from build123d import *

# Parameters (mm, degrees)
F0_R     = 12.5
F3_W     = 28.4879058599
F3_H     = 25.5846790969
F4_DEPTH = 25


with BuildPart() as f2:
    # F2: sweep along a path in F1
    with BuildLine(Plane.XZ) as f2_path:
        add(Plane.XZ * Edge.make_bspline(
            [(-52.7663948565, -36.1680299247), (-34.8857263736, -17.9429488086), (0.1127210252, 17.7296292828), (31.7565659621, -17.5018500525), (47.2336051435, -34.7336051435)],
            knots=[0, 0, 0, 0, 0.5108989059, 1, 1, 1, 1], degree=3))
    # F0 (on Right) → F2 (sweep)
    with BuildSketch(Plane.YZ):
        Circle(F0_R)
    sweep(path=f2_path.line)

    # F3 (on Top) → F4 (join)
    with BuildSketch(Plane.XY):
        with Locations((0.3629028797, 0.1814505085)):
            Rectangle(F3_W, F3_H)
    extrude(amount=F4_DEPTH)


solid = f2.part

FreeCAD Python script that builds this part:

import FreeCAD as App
import Part
import Sketcher
Q = App.Units.Quantity

doc = App.newDocument("Part")
body = doc.addObject("PartDesign::Body", "Body")

# Sketch on YZ plane
sketch1 = body.newObject("Sketcher::SketchObject", "Sketch")
sketch1.AttachmentSupport = (doc.getObject("YZ_Plane"), [""])
sketch1.MapMode = "FlatFace"
sketch1.addGeometry(Part.Circle(App.Vector(0, 0, 0), App.Vector(0, 0, 1), 12), False)
sketch1.addConstraint([
    Sketcher.Constraint("Coincident", 0, 3, -1, 1),
    Sketcher.Constraint("Diameter", 0, Q("25 mm")),
])

# Sketch on XZ plane
sketch2 = body.newObject("Sketcher::SketchObject", "Sketch001")
sketch2.AttachmentSupport = (doc.getObject("XZ_Plane"), [""])
sketch2.MapMode = "FlatFace"
sketch2.addGeometry(Part.BSplineCurve([App.Vector(-52.766395, -36.16803, 0), App.Vector(-34.885726, -17.942949, 0), App.Vector(0.112721, 17.729629, 0), App.Vector(31.756566, -17.50185, 0), App.Vector(47.233605, -34.733605, 0)], [4, 1, 4], [0, 0.510898906, 1], False, 3, [1, 1, 1, 1, 1], False), False)
sketch2.addConstraint(Sketcher.Constraint("Block", 0))
doc.recompute()

additivepipe = body.newObject("PartDesign::AdditivePipe", "AdditivePipe")
additivepipe.Profile = sketch1
additivepipe.Spine = (sketch2, ["Edge1"])

# Sketch on XY plane
sketch3 = body.newObject("Sketcher::SketchObject", "Sketch002")
sketch3.AttachmentSupport = (doc.getObject("XY_Plane"), [""])
sketch3.MapMode = "FlatFace"
sketch3.addGeometry([
    Part.LineSegment(App.Vector(-14, 13, 0), App.Vector(-14, -13, 0)),
    Part.LineSegment(App.Vector(-14, -13, 0), App.Vector(15, -13, 0)),
    Part.LineSegment(App.Vector(15, -13, 0), App.Vector(15, 13, 0)),
    Part.LineSegment(App.Vector(15, 13, 0), App.Vector(-14, 13, 0)),
], False)
sketch3.addConstraint([
    Sketcher.Constraint("Coincident", 0, 2, 1, 1),
    Sketcher.Constraint("Coincident", 1, 2, 2, 1),
    Sketcher.Constraint("Coincident", 2, 2, 3, 1),
    Sketcher.Constraint("Coincident", 3, 2, 0, 1),
    Sketcher.Constraint("Vertical", 0),
    Sketcher.Constraint("Horizontal", 1),
    Sketcher.Constraint("Vertical", 2),
    Sketcher.Constraint("Horizontal", 3),
    Sketcher.Constraint("DistanceY", 0, 2, 0, 1, Q("25.584679 mm")),
    Sketcher.Constraint("DistanceX", 1, 1, 1, 2, Q("28.487906 mm")),
    Sketcher.Constraint("DistanceX", 0, 2, -1, 1, Q("13.88105 mm")),
    Sketcher.Constraint("DistanceY", 0, 2, -1, 1, Q("12.610889 mm")),
])
pad1 = body.newObject("PartDesign::Pad", "Pad")
pad1.Profile = sketch3
pad1.Length = 25

doc.recompute()
